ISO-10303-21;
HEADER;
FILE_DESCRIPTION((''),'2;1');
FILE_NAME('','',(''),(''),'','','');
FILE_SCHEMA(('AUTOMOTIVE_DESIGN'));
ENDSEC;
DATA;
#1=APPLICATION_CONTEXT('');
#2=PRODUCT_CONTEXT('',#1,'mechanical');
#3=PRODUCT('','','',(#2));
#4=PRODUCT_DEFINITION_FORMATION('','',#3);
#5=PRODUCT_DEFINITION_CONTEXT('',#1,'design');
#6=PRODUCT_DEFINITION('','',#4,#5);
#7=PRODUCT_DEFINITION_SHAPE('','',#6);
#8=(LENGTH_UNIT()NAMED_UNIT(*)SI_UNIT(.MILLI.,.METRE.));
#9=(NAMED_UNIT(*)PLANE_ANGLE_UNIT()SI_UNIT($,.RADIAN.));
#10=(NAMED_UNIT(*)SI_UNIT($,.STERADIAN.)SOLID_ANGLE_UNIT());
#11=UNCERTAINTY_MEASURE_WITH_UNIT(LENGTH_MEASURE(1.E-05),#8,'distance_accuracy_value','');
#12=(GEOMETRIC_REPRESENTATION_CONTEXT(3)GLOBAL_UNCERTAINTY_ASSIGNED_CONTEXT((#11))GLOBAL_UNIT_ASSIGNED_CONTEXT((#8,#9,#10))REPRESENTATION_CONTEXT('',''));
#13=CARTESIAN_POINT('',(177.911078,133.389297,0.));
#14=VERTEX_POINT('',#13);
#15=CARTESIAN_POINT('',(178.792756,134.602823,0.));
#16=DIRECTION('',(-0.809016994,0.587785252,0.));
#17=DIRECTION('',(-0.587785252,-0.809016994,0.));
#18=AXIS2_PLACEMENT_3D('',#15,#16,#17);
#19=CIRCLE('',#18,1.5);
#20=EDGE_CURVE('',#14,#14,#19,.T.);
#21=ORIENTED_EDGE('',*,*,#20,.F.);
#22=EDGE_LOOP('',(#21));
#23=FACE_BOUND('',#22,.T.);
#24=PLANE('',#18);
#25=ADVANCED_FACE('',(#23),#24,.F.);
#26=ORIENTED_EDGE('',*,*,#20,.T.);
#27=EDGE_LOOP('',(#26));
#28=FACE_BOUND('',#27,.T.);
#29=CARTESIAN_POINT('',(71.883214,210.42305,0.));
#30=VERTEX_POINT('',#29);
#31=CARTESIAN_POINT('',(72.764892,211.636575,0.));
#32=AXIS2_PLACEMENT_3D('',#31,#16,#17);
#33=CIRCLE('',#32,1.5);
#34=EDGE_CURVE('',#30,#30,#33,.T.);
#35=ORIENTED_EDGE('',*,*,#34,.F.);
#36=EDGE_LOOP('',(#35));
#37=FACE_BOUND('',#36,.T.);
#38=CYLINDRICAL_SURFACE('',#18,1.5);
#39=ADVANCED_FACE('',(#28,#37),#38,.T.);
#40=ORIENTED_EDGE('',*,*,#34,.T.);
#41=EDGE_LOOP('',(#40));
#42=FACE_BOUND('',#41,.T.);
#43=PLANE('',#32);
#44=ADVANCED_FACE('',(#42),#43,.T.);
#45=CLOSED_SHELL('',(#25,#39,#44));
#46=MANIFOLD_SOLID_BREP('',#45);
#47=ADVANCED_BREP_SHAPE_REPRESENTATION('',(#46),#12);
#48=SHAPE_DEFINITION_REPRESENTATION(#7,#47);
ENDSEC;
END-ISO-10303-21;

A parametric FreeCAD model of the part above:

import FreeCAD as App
import Part
import Sketcher
from FreeCAD import Vector

doc = App.newDocument("Part")
body = doc.addObject("PartDesign::Body", "Body")

# Sketch on an angled plane
sketch1 = doc.addObject("Sketcher::SketchObject", "Sketch")
body.addObject(sketch1)
sketch1.Placement = App.Placement(Vector(72.764892, 211.636575, 0), App.Rotation(Vector(0, 0, 1), Vector(0.587785252, 0.809016994, 0), Vector(-0.809016994, 0.587785252, 0), "ZXY"))
sketch1.addGeometry(Part.Circle(Vector(0, 0, 0), Vector(0, 0, 1), 1.5), False)
sketch1.addConstraint([
    Sketcher.Constraint("Coincident", 0, 3, -1, 1),
    Sketcher.Constraint("Diameter", 0, 3.0),
])

# Sketch on an angled plane
sketch2 = doc.addObject("Sketcher::SketchObject", "Sketch001")
body.addObject(sketch2)
sketch2.Placement = App.Placement(Vector(125.778824, 173.119699, 0), App.Rotation(Vector(-0.809016994, 0.587785252, 0), Vector(0, 0, 0.999999999), Vector(0.587785252, 0.809016994, 0), "ZXY"))
sketch2.addGeometry(Part.LineSegment(Vector(-65.528824, 0, 0), Vector(65.528824, 0, 0)), False)
sketch2.addConstraint([
    Sketcher.Constraint("Horizontal", 0),
    Sketcher.Constraint("Symmetric", 0, 1, 0, 2, -1, 1),
    Sketcher.Constraint("DistanceX", 0, 1, 0, 2, 131.057647),
])
doc.recompute()

additivepipe = doc.addObject("PartDesign::AdditivePipe", "AdditivePipe")
body.addObject(additivepipe)
additivepipe.Profile = sketch1
additivepipe.Spine = (sketch2, ["Edge1"])

doc.recompute()
